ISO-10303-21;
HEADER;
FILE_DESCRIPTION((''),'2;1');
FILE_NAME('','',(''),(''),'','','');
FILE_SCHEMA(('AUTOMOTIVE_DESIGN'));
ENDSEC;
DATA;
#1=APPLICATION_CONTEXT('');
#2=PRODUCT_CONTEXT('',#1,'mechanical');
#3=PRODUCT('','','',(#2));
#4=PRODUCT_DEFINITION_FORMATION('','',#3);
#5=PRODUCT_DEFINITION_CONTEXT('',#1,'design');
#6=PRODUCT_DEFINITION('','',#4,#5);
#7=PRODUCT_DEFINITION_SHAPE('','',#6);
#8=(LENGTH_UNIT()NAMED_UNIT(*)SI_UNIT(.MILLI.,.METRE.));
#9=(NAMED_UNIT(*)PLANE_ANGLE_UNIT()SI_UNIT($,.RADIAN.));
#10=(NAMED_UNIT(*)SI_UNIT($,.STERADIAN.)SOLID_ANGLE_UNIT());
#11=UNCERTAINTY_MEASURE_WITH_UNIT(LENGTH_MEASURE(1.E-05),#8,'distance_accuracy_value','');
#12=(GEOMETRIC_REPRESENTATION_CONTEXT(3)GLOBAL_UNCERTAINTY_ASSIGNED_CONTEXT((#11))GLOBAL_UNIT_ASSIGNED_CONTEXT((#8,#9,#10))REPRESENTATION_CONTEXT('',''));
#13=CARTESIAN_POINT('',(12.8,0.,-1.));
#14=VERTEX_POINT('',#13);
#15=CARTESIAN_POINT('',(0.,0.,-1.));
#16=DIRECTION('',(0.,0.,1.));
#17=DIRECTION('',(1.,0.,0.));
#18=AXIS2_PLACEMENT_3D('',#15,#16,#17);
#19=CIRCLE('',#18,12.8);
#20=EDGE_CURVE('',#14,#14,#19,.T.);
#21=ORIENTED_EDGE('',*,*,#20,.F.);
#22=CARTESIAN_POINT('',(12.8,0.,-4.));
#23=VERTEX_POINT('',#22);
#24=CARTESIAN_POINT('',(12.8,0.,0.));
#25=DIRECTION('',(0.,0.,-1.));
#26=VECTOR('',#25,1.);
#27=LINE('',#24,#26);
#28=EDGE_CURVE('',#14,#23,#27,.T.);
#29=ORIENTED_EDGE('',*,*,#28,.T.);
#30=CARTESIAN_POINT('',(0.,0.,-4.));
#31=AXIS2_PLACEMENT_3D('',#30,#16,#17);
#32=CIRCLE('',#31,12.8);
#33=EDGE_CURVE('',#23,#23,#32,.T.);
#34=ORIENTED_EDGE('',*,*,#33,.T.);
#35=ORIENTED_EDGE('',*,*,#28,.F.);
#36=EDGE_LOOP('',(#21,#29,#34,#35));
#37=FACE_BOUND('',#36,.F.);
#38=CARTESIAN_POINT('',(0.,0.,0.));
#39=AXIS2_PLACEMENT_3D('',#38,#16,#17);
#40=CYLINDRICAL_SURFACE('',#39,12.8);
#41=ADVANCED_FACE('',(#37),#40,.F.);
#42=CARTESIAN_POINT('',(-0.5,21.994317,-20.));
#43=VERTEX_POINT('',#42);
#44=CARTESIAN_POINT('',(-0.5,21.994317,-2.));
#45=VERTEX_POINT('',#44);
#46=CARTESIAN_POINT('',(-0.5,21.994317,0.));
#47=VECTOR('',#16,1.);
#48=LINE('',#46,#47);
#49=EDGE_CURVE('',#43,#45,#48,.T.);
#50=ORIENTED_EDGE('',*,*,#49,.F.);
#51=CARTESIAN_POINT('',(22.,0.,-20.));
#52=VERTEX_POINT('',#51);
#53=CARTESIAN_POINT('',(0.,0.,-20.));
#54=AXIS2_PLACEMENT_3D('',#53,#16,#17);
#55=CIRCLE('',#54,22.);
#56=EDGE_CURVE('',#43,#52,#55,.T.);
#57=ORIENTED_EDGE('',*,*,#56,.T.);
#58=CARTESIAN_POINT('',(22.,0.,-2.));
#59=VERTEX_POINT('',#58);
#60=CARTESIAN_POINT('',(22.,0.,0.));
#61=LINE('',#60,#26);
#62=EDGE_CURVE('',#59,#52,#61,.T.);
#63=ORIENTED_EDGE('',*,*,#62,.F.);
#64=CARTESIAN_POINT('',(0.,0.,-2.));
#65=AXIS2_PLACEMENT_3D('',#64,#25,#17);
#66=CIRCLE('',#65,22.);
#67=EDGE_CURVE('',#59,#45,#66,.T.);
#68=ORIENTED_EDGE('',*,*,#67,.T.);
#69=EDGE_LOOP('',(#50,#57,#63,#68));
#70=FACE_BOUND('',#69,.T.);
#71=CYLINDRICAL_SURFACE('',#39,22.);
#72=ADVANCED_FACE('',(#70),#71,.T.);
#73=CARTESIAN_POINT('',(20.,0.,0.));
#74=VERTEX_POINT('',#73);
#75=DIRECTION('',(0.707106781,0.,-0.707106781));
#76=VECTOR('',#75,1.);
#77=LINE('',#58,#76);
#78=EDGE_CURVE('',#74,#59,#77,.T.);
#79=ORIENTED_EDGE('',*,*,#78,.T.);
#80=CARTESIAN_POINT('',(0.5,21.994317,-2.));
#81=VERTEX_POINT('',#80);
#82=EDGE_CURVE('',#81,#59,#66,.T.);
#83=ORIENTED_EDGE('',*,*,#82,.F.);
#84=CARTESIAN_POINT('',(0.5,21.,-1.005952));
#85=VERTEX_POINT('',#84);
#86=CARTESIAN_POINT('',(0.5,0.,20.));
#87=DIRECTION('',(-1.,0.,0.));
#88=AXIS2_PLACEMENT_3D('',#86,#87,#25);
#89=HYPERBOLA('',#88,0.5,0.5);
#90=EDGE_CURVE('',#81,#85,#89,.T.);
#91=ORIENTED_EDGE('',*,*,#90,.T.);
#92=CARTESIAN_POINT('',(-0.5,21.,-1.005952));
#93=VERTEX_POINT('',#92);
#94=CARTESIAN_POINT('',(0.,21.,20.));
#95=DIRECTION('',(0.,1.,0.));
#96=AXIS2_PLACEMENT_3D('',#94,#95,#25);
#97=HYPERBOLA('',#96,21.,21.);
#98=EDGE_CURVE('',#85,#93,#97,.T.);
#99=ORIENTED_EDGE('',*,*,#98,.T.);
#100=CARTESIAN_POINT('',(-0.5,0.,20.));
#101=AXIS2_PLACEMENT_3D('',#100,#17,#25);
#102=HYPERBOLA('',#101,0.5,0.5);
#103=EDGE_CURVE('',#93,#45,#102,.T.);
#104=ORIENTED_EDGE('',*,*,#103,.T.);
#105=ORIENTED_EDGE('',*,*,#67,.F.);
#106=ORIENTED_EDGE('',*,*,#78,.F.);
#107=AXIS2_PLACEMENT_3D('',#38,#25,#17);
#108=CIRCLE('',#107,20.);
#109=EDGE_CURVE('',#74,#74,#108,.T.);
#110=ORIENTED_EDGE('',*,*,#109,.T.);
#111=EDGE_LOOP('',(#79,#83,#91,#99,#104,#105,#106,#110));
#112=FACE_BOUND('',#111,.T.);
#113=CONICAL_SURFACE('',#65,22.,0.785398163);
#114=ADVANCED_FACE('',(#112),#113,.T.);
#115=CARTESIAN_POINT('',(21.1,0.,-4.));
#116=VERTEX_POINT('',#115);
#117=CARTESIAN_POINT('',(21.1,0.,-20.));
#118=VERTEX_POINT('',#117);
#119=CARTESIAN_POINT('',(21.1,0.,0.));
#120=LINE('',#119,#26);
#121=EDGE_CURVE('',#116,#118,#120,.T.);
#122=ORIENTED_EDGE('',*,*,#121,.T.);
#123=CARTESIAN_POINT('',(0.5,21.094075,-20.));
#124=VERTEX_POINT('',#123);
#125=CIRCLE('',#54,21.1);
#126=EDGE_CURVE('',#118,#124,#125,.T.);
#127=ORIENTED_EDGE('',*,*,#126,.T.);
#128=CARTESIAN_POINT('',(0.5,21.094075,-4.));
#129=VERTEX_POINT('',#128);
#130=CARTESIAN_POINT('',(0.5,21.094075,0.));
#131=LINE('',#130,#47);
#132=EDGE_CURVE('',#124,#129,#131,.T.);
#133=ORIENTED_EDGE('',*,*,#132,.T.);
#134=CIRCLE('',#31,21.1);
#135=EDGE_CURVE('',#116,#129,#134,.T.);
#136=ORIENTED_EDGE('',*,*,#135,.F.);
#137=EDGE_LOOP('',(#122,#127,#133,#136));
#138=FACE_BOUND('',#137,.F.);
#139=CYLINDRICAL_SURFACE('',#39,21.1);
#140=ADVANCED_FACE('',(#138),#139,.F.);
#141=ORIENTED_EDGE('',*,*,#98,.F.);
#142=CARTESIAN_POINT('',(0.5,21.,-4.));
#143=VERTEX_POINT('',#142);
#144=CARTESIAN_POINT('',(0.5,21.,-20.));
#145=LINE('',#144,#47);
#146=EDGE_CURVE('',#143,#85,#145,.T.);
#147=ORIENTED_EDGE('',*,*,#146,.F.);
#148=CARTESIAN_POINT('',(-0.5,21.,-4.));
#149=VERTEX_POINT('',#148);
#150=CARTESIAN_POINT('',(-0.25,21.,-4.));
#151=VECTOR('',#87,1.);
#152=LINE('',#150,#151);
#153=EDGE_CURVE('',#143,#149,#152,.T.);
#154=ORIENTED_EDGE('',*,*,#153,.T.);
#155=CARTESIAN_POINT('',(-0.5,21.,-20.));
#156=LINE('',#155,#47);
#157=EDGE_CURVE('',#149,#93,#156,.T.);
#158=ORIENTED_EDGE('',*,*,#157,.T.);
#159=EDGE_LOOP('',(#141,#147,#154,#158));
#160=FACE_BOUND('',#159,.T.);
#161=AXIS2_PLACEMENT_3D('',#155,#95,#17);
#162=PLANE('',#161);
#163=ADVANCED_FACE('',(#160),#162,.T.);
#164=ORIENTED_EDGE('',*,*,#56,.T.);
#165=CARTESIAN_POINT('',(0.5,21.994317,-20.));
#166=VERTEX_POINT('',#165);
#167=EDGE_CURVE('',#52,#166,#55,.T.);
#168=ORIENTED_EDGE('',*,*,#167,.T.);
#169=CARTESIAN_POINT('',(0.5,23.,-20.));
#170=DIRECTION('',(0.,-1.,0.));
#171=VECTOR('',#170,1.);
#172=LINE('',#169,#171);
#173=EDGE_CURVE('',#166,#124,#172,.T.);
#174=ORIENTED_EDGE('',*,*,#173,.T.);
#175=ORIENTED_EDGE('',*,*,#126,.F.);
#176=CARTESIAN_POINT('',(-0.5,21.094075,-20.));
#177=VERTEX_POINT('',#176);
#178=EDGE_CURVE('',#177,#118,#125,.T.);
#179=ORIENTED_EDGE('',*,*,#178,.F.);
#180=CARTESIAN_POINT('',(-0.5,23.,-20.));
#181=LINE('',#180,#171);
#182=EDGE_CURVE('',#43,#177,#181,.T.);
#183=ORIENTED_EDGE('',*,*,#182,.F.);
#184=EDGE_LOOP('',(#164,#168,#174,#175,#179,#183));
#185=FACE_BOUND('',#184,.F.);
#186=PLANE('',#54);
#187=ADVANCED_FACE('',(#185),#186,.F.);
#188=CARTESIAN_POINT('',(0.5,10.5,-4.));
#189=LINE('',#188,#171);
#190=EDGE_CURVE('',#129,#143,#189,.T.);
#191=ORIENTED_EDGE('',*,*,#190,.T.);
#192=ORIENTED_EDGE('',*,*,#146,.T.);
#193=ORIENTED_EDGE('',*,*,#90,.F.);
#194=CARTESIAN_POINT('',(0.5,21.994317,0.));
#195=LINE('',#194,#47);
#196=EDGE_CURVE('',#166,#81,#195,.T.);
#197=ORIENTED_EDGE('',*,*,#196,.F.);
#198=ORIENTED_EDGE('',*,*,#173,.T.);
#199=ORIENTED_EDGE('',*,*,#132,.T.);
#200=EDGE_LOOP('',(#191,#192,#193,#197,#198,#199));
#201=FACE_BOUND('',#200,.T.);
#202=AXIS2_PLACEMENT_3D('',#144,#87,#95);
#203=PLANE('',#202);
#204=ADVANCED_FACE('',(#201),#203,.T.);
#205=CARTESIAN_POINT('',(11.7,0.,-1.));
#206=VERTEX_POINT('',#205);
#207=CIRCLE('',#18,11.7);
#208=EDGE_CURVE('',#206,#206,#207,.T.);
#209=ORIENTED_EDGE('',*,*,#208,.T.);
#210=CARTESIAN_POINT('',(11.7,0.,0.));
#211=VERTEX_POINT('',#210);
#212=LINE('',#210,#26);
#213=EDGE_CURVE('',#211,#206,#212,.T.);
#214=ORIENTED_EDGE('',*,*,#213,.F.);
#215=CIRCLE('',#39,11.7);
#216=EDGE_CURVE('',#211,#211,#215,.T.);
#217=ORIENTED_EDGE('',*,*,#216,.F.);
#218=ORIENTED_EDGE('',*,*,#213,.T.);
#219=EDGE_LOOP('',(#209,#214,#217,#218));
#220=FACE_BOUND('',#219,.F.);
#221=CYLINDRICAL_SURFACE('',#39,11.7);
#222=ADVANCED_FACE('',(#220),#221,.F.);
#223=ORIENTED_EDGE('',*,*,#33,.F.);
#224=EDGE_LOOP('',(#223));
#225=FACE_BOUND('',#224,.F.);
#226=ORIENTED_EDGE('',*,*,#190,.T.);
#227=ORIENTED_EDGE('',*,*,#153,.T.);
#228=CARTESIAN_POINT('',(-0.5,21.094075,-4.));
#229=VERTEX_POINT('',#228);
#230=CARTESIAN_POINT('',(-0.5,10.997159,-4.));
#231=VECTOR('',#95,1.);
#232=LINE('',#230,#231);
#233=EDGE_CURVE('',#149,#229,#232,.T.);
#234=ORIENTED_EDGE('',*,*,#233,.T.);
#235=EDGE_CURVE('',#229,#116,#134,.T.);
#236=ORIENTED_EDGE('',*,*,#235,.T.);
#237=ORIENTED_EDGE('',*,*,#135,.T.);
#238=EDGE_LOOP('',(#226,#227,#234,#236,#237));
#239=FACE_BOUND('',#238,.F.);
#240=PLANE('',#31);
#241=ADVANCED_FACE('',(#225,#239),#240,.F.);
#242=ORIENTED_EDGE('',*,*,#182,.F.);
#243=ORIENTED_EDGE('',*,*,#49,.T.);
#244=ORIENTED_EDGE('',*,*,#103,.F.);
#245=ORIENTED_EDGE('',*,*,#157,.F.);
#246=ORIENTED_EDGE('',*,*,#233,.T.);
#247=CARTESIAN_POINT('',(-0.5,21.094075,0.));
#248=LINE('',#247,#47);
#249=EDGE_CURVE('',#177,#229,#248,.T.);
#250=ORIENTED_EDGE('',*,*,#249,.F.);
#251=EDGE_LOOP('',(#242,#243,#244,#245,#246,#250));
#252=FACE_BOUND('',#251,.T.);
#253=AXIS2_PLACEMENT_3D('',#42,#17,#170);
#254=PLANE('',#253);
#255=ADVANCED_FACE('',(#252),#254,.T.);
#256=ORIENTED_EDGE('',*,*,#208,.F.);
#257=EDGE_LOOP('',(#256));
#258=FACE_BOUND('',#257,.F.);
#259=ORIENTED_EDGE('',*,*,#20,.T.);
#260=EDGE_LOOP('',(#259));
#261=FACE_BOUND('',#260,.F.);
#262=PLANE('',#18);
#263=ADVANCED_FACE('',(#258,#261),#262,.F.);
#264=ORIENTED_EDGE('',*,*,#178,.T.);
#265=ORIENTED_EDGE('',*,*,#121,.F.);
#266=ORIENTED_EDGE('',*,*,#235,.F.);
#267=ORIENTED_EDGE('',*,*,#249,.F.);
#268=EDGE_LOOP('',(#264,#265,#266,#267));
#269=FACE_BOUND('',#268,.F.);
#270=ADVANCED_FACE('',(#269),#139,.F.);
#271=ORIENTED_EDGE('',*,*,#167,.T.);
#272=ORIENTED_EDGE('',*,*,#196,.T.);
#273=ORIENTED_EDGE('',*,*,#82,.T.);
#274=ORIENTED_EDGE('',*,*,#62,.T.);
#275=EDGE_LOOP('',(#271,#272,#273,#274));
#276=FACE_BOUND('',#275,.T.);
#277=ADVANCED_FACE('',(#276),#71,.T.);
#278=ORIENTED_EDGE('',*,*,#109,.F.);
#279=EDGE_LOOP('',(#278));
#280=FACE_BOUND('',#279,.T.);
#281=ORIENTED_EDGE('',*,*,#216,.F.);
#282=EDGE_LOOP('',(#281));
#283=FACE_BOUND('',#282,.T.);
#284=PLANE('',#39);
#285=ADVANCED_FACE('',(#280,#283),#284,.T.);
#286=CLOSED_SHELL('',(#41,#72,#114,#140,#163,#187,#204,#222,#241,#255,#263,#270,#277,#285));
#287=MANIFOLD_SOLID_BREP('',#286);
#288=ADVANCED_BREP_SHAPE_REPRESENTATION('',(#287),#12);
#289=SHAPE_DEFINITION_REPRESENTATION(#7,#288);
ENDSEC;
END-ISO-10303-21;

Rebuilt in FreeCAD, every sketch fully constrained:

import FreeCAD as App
import Part
import Sketcher

V = App.Vector


def edges_at(feature, points):
    """Names of the edges that pass closest to the given points."""
    edges = feature.Shape.Edges
    near = lambda p: min(range(len(edges)), key=lambda i: edges[i].distToShape(Part.Vertex(*p))[0])
    return sorted({f"Edge{near(p) + 1}" for p in points})

doc = App.newDocument("Part")
params = doc.addObject("Spreadsheet::Sheet", "Params")
for row, (alias, value) in enumerate([
    ("sketch1_diameter", "42.2 mm"),
    ("sketch1_diameter2", "25.6 mm"),
    ("pad1_length", "4 mm"),
    ("sketch2_diameter", "44 mm"),
    ("sketch2_diameter2", "42.2 mm"),
    ("pad2_length", "20 mm"),
    ("sketch3_diameter", "25.6 mm"),
    ("sketch3_diameter2", "23.4 mm"),
    ("pad3_length", "1 mm"),
    ("chamfer_size", "2 mm"),
    ("sketch4_width", "1 mm"),
    ("sketch4_height", "2 mm"),
    ("pocket1_length", "20 mm"),
], start=1):
    params.set(f"A{row}", alias)
    params.set(f"B{row}", "=" + value)
    params.setAlias(f"B{row}", alias)

body = doc.addObject("PartDesign::Body", "Body")

# Sketch on XY plane
sketch1 = body.newObject("Sketcher::SketchObject", "Sketch")
sketch1.AttachmentSupport = (doc.getObject("XY_Plane"), [""])
sketch1.MapMode = "FlatFace"
sketch1.addGeometry([
    Part.Circle(V(0, 0, 0), V(0, 0, 1), 21),
    Part.Circle(V(0, 0, 0), V(0, 0, 1), 13),
], False)
sketch1.addConstraint([
    Sketcher.Constraint("Coincident", 0, 3, -1, 1),
    Sketcher.Constraint("Coincident", 1, 3, -1, 1),
    Sketcher.Constraint("Diameter", 0, 42.2),
    Sketcher.Constraint("Diameter", 1, 25.6),
])
sketch1.setExpression("Constraints[2]", "Params.sketch1_diameter")
sketch1.setExpression("Constraints[3]", "Params.sketch1_diameter2")
pad1 = body.newObject("PartDesign::Pad", "Pad")
pad1.Profile = sketch1
pad1.setExpression("Length", "Params.pad1_length")
pad1.Reversed = True

# Sketch on XY plane
sketch2 = body.newObject("Sketcher::SketchObject", "Sketch001")
sketch2.AttachmentSupport = (doc.getObject("XY_Plane"), [""])
sketch2.MapMode = "FlatFace"
sketch2.addGeometry([
    Part.Circle(V(0, 0, 0), V(0, 0, 1), 22),
    Part.Circle(V(0, 0, 0), V(0, 0, 1), 21),
], False)
sketch2.addConstraint([
    Sketcher.Constraint("Coincident", 0, 3, -1, 1),
    Sketcher.Constraint("Coincident", 1, 3, -1, 1),
    Sketcher.Constraint("Diameter", 0, 44.0),
    Sketcher.Constraint("Diameter", 1, 42.2),
])
sketch2.setExpression("Constraints[2]", "Params.sketch2_diameter")
sketch2.setExpression("Constraints[3]", "Params.sketch2_diameter2")
pad2 = body.newObject("PartDesign::Pad", "Pad001")
pad2.Profile = sketch2
pad2.setExpression("Length", "Params.pad2_length")
pad2.Reversed = True

# Sketch on XY plane
sketch3 = body.newObject("Sketcher::SketchObject", "Sketch002")
sketch3.AttachmentSupport = (doc.getObject("XY_Plane"), [""])
sketch3.MapMode = "FlatFace"
sketch3.addGeometry([
    Part.Circle(V(0, 0, 0), V(0, 0, 1), 13),
    Part.Circle(V(0, 0, 0), V(0, 0, 1), 12),
], False)
sketch3.addConstraint([
    Sketcher.Constraint("Coincident", 0, 3, -1, 1),
    Sketcher.Constraint("Coincident", 1, 3, -1, 1),
    Sketcher.Constraint("Diameter", 0, 25.6),
    Sketcher.Constraint("Diameter", 1, 23.4),
])
sketch3.setExpression("Constraints[2]", "Params.sketch3_diameter")
sketch3.setExpression("Constraints[3]", "Params.sketch3_diameter2")
pad3 = body.newObject("PartDesign::Pad", "Pad002")
pad3.Profile = sketch3
pad3.setExpression("Length", "Params.pad3_length")
pad3.Reversed = True
doc.recompute()

chamfer = body.newObject("PartDesign::Chamfer", "Chamfer")
chamfer.Base = (pad3, edges_at(pad3, [(-22, 0, 0)]))
chamfer.setExpression("Size", "Params.chamfer_size")

# Sketch on XY plane
sketch4 = body.newObject("Sketcher::SketchObject", "Sketch003")
sketch4.AttachmentSupport = (doc.getObject("XY_Plane"), [""])
sketch4.MapMode = "FlatFace"
sketch4.AttachmentOffset = App.Placement(V(0, 0, -20), App.Rotation())
sketch4.addGeometry([
    Part.LineSegment(V(-0.5, 21, 0), V(-0.5, 23, 0)),
    Part.LineSegment(V(-0.5, 23, 0), V(0.5, 23, 0)),
    Part.LineSegment(V(0.5, 23, 0), V(0.5, 21, 0)),
    Part.LineSegment(V(0.5, 21, 0), V(-0.5, 21, 0)),
], False)
sketch4.addConstraint([
    Sketcher.Constraint("Coincident", 0, 2, 1, 1),
    Sketcher.Constraint("Coincident", 1, 2, 2, 1),
    Sketcher.Constraint("Coincident", 2, 2, 3, 1),
    Sketcher.Constraint("Coincident", 3, 2, 0, 1),
    Sketcher.Constraint("Vertical", 0),
    Sketcher.Constraint("Horizontal", 1),
    Sketcher.Constraint("Vertical", 2),
    Sketcher.Constraint("Horizontal", 3),
    Sketcher.Constraint("DistanceX", 1, 1, 1, 2, 1.0),
    Sketcher.Constraint("DistanceY", 0, 1, 0, 2, 2.0),
    Sketcher.Constraint("DistanceY", -1, 1, 0, 2, 23.0),
    Sketcher.Constraint("DistanceX", 0, 2, -1, 1, 0.5),
])
sketch4.setExpression("Constraints[8]", "Params.sketch4_width")
sketch4.setExpression("Constraints[9]", "Params.sketch4_height")
pocket1 = body.newObject("PartDesign::Pocket", "Pocket")
pocket1.Profile = sketch4
pocket1.setExpression("Length", "Params.pocket1_length")
pocket1.Reversed = True

doc.recompute()
